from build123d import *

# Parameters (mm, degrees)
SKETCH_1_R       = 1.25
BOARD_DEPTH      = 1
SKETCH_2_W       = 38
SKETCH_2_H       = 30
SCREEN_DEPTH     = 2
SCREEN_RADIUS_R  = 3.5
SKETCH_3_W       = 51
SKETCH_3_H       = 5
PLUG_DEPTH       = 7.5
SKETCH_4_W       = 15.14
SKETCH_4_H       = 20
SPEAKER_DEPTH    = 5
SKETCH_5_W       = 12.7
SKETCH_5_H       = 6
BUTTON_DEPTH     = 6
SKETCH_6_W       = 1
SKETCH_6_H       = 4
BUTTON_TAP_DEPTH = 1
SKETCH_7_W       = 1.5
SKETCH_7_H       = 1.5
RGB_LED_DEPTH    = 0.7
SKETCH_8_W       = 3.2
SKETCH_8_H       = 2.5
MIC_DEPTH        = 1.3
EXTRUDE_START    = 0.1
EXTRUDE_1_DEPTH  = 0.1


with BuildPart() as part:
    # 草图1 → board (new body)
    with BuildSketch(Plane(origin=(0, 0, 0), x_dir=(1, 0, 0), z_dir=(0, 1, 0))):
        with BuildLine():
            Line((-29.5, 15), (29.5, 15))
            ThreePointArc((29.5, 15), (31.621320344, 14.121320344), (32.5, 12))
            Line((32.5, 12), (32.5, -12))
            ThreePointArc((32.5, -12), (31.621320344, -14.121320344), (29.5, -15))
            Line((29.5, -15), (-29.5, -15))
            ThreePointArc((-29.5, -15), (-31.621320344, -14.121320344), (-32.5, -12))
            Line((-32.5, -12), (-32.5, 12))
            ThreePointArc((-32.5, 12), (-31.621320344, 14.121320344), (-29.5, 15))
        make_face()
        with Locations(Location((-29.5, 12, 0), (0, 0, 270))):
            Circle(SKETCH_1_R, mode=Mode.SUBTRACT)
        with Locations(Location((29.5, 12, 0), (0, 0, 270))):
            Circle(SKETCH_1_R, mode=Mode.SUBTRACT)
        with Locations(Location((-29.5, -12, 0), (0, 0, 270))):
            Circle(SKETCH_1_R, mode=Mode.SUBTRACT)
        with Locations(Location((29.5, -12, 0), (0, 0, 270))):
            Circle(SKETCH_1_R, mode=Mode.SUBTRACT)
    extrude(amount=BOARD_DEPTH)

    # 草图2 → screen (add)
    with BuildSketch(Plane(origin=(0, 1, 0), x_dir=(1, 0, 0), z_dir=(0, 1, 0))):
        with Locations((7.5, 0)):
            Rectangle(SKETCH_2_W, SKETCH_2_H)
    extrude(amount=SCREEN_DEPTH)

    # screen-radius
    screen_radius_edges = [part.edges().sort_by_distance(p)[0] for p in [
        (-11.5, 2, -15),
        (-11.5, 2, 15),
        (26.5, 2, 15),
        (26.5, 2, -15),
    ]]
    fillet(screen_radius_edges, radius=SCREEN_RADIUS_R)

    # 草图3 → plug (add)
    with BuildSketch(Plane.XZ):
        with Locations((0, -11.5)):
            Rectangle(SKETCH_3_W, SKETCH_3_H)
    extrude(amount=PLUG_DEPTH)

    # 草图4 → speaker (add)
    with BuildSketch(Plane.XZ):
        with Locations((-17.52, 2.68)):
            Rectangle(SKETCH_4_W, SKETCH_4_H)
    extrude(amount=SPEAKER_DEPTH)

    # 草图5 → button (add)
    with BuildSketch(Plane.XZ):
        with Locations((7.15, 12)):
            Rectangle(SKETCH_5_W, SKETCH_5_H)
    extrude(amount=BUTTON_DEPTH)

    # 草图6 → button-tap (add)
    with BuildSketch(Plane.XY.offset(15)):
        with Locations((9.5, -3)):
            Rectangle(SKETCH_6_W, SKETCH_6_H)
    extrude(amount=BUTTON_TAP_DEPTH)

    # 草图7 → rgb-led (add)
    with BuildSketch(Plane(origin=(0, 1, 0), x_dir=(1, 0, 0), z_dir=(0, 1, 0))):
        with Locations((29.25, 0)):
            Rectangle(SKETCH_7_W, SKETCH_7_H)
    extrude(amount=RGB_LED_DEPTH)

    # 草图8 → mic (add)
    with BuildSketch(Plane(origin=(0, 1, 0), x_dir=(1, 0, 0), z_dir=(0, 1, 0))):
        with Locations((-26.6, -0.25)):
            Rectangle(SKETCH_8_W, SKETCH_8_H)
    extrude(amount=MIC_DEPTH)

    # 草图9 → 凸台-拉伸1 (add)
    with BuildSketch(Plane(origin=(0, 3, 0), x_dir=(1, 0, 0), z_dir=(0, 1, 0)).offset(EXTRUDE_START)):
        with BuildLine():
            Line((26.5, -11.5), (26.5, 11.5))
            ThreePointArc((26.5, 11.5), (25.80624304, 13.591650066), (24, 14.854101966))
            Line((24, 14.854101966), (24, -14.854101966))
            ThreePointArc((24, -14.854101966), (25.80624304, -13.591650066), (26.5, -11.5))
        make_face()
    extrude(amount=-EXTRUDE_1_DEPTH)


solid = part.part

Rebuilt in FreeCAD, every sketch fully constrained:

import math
import FreeCAD as App
import Part
import Sketcher

V = App.Vector
Q = App.Units.Quantity


def edges_at(feature, points):
    """Names of the edges that pass closest to the given points."""
    edges = feature.Shape.Edges
    near = lambda p: min(range(len(edges)), key=lambda i: edges[i].distToShape(Part.Vertex(*p))[0])
    return sorted({f"Edge{near(p) + 1}" for p in points})

doc = App.newDocument("Part")
params = doc.addObject("Spreadsheet::Sheet", "Params")
for row, (alias, value) in enumerate([
    ("sketch1_radius", "3 mm"),
    ("sketch1_diameter", "2.5 mm"),
    ("sketch1_width", "59 mm"),
    ("sketch1_height", "24 mm"),
    ("pad1_length", "1 mm"),
    ("sketch2_width", "38 mm"),
    ("sketch2_height", "30 mm"),
    ("pad2_length", "2 mm"),
    ("fillet_radius", "3.5 mm"),
    ("sketch3_width", "51 mm"),
    ("sketch3_height", "5 mm"),
    ("pad3_length", "7.5 mm"),
    ("sketch4_height", "20 mm"),
    ("sketch4_width", "15.14 mm"),
    ("pad4_length", "5 mm"),
    ("sketch5_height", "6 mm"),
    ("sketch5_width", "12.7 mm"),
    ("pad5_length", "6 mm"),
    ("sketch6_width", "1 mm"),
    ("sketch6_height", "4 mm"),
    ("pad6_length", "1 mm"),
    ("sketch7_width", "1.5 mm"),
    ("pad7_length", "0.7 mm"),
    ("sketch8_width", "3.2 mm"),
    ("sketch8_height", "2.5 mm"),
    ("pad8_length", "1.3 mm"),
    ("sketch9_radius", "3.5 mm"),
    ("sketch9_height", "23 mm"),
    ("pad9_length", "0.1 mm"),
], start=1):
    params.set(f"A{row}", alias)
    params.set(f"B{row}", "=" + value)
    params.setAlias(f"B{row}", alias)

body = doc.addObject("PartDesign::Body", "Body")

# Sketch on XZ plane
sketch1 = body.newObject("Sketcher::SketchObject", "Sketch")
sketch1.AttachmentSupport = (doc.getObject("XZ_Plane"), [""])
sketch1.MapMode = "FlatFace"
sketch1.addGeometry([
    Part.LineSegment(V(29.5, -15, 0), V(-29.5, -15, 0)),  # 0
    Part.ArcOfCircle(Part.Circle(V(-29.5, -12, 0), V(0, 0, 1), 3), math.radians(180), math.radians(270)),  # 1
    Part.LineSegment(V(-32.5, -12, 0), V(-32.5, 12, 0)),  # 2
    Part.ArcOfCircle(Part.Circle(V(-29.5, 12, 0), V(0, 0, 1), 3), math.radians(90), math.radians(180)),  # 3
    Part.LineSegment(V(-29.5, 15, 0), V(29.5, 15, 0)),  # 4
    Part.ArcOfCircle(Part.Circle(V(29.5, 12, 0), V(0, 0, 1), 3), math.radians(0), math.radians(90)),  # 5
    Part.LineSegment(V(32.5, 12, 0), V(32.5, -12, 0)),  # 6
    Part.ArcOfCircle(Part.Circle(V(29.5, -12, 0), V(0, 0, 1), 3), math.radians(-90), math.radians(0)),  # 7
    Part.Circle(V(29.5, 12, 0), V(0, 0, 1), 1.2),  # 8
    Part.Circle(V(-29.5, 12, 0), V(0, 0, 1), 1.2),  # 9
    Part.Circle(V(29.5, -12, 0), V(0, 0, 1), 1.2),  # 10
    Part.Circle(V(-29.5, -12, 0), V(0, 0, 1), 1.2),  # 11
], False)
sketch1.addConstraint([
    Sketcher.Constraint("Tangent", 0, 2, 1, 2),
    Sketcher.Constraint("Tangent", 1, 1, 2, 1),
    Sketcher.Constraint("Tangent", 2, 2, 3, 2),
    Sketcher.Constraint("Tangent", 3, 1, 4, 1),
    Sketcher.Constraint("Tangent", 4, 2, 5, 2),
    Sketcher.Constraint("Tangent", 5, 1, 6, 1),
    Sketcher.Constraint("Tangent", 6, 2, 7, 2),
    Sketcher.Constraint("Tangent", 7, 1, 0, 1),
    Sketcher.Constraint("Horizontal", 0),
    Sketcher.Constraint("Vertical", 2),
    Sketcher.Constraint("Horizontal", 4),
    Sketcher.Constraint("Vertical", 6),
    Sketcher.Constraint("Coincident", 8, 3, 5, 3),
    Sketcher.Constraint("Coincident", 9, 3, 3, 3),
    Sketcher.Constraint("Coincident", 10, 3, 7, 3),
    Sketcher.Constraint("Coincident", 11, 3, 1, 3),
    Sketcher.Constraint("Equal", 1, 3),
    Sketcher.Constraint("Equal", 3, 5),
    Sketcher.Constraint("Equal", 5, 7),
    Sketcher.Constraint("Equal", 8, 9),
    Sketcher.Constraint("Equal", 9, 10),
    Sketcher.Constraint("Equal", 10, 11),
    Sketcher.Constraint("Symmetric", 1, 3, 5, 3, -1, 1),
    Sketcher.Constraint("Radius", 1, Q("3 mm")),
    Sketcher.Constraint("Diameter", 8, Q("2.5 mm")),
    Sketcher.Constraint("DistanceX", 0, 2, 0, 1, Q("59 mm")),
    Sketcher.Constraint("DistanceY", 2, 1, 2, 2, Q("24 mm")),
])
sketch1.setExpression("Constraints[23]", "Params.sketch1_radius")
sketch1.setExpression("Constraints[24]", "Params.sketch1_diameter")
sketch1.setExpression("Constraints[25]", "Params.sketch1_width")
sketch1.setExpression("Constraints[26]", "Params.sketch1_height")
pad1 = body.newObject("PartDesign::Pad", "Pad")
pad1.Profile = sketch1
pad1.setExpression("Length", "Params.pad1_length")
pad1.Reversed = True

# Sketch on XZ plane
sketch2 = body.newObject("Sketcher::SketchObject", "Sketch001")
sketch2.AttachmentSupport = (doc.getObject("XZ_Plane"), [""])
sketch2.MapMode = "FlatFace"
sketch2.AttachmentOffset = App.Placement(V(0, 0, -1), App.Rotation())
sketch2.addGeometry([
    Part.LineSegment(V(-12, -15, 0), V(-12, 15, 0)),
    Part.LineSegment(V(-12, 15, 0), V(26, 15, 0)),
    Part.LineSegment(V(26, 15, 0), V(26, -15, 0)),
    Part.LineSegment(V(26, -15, 0), V(-12, -15, 0)),
], False)
sketch2.addConstraint([
    Sketcher.Constraint("Coincident", 0, 2, 1, 1),
    Sketcher.Constraint("Coincident", 1, 2, 2, 1),
    Sketcher.Constraint("Coincident", 2, 2, 3, 1),
    Sketcher.Constraint("Coincident", 3, 2, 0, 1),
    Sketcher.Constraint("Vertical", 0),
    Sketcher.Constraint("Horizontal", 1),
    Sketcher.Constraint("Vertical", 2),
    Sketcher.Constraint("Horizontal", 3),
    Sketcher.Constraint("DistanceX", 1, 1, 1, 2, Q("38 mm")),
    Sketcher.Constraint("DistanceY", 0, 1, 0, 2, Q("30 mm")),
    Sketcher.Constraint("DistanceY", -1, 1, 0, 2, Q("15 mm")),
    Sketcher.Constraint("DistanceX", 0, 2, -1, 1, Q("11.5 mm")),
])
sketch2.setExpression("Constraints[8]", "Params.sketch2_width")
sketch2.setExpression("Constraints[9]", "Params.sketch2_height")
pad2 = body.newObject("PartDesign::Pad", "Pad001")
pad2.Profile = sketch2
pad2.setExpression("Length", "Params.pad2_length")
pad2.Reversed = True
doc.recompute()

fillet = body.newObject("PartDesign::Fillet", "Fillet")
fillet.Base = (pad2, edges_at(pad2, [
    (-11.5, 2, -15),
    (-11.5, 2, 15),
    (26.5, 2, 15),
    (26.5, 2, -15),
]))
fillet.setExpression("Radius", "Params.fillet_radius")

# Sketch on XZ plane
sketch3 = body.newObject("Sketcher::SketchObject", "Sketch002")
sketch3.AttachmentSupport = (doc.getObject("XZ_Plane"), [""])
sketch3.MapMode = "FlatFace"
sketch3.addGeometry([
    Part.LineSegment(V(-26, -9, 0), V(-26, -14, 0)),
    Part.LineSegment(V(-26, -14, 0), V(26, -14, 0)),
    Part.LineSegment(V(26, -14, 0), V(26, -9, 0)),
    Part.LineSegment(V(26, -9, 0), V(-26, -9, 0)),
], False)
sketch3.addConstraint([
    Sketcher.Constraint("Coincident", 0, 2, 1, 1),
    Sketcher.Constraint("Coincident", 1, 2, 2, 1),
    Sketcher.Constraint("Coincident", 2, 2, 3, 1),
    Sketcher.Constraint("Coincident", 3, 2, 0, 1),
    Sketcher.Constraint("Vertical", 0),
    Sketcher.Constraint("Horizontal", 1),
    Sketcher.Constraint("Vertical", 2),
    Sketcher.Constraint("Horizontal", 3),
    Sketcher.Constraint("DistanceX", 1, 1, 1, 2, Q("51 mm")),
    Sketcher.Constraint("DistanceY", 0, 2, 0, 1, Q("5 mm")),
    Sketcher.Constraint("DistanceY", 0, 2, -1, 1, Q("14 mm")),
    Sketcher.Constraint("DistanceX", 0, 2, -1, 1, Q("25.5 mm")),
])
sketch3.setExpression("Constraints[8]", "Params.sketch3_width")
sketch3.setExpression("Constraints[9]", "Params.sketch3_height")
pad3 = body.newObject("PartDesign::Pad", "Pad002")
pad3.Profile = sketch3
pad3.setExpression("Length", "Params.pad3_length")

# Sketch on XZ plane
sketch4 = body.newObject("Sketcher::SketchObject", "Sketch003")
sketch4.AttachmentSupport = (doc.getObject("XZ_Plane"), [""])
sketch4.MapMode = "FlatFace"
sketch4.addGeometry([
    Part.LineSegment(V(-25, 13, 0), V(-25, -7, 0)),
    Part.LineSegment(V(-25, -7, 0), V(-10, -7, 0)),
    Part.LineSegment(V(-10, -7, 0), V(-10, 13, 0)),
    Part.LineSegment(V(-10, 13, 0), V(-25, 13, 0)),
], False)
sketch4.addConstraint([
    Sketcher.Constraint("Coincident", 0, 2, 1, 1),
    Sketcher.Constraint("Coincident", 1, 2, 2, 1),
    Sketcher.Constraint("Coincident", 2, 2, 3, 1),
    Sketcher.Constraint("Coincident", 3, 2, 0, 1),
    Sketcher.Constraint("Vertical", 0),
    Sketcher.Constraint("Horizontal", 1),
    Sketcher.Constraint("Vertical", 2),
    Sketcher.Constraint("Horizontal", 3),
    Sketcher.Constraint("DistanceY", 0, 2, 0, 1, Q("20 mm")),
    Sketcher.Constraint("DistanceX", 1, 1, 1, 2, Q("15.14 mm")),
    Sketcher.Constraint("DistanceX", 0, 2, -1, 1, Q("25.09 mm")),
    Sketcher.Constraint("DistanceY", 0, 2, -1, 1, Q("7.32 mm")),
])
sketch4.setExpression("Constraints[8]", "Params.sketch4_height")
sketch4.setExpression("Constraints[9]", "Params.sketch4_width")
pad4 = body.newObject("PartDesign::Pad", "Pad003")
pad4.Profile = sketch4
pad4.setExpression("Length", "Params.pad4_length")

# Sketch on XZ plane
sketch5 = body.newObject("Sketcher::SketchObject", "Sketch004")
sketch5.AttachmentSupport = (doc.getObject("XZ_Plane"), [""])
sketch5.MapMode = "FlatFace"
sketch5.addGeometry([
    Part.LineSegment(V(1, 15, 0), V(1, 9, 0)),
    Part.LineSegment(V(1, 9, 0), V(14, 9, 0)),
    Part.LineSegment(V(14, 9, 0), V(14, 15, 0)),
    Part.LineSegment(V(14, 15, 0), V(1, 15, 0)),
], False)
sketch5.addConstraint([
    Sketcher.Constraint("Coincident", 0, 2, 1, 1),
    Sketcher.Constraint("Coincident", 1, 2, 2, 1),
    Sketcher.Constraint("Coincident", 2, 2, 3, 1),
    Sketcher.Constraint("Coincident", 3, 2, 0, 1),
    Sketcher.Constraint("Vertical", 0),
    Sketcher.Constraint("Horizontal", 1),
    Sketcher.Constraint("Vertical", 2),
    Sketcher.Constraint("Horizontal", 3),
    Sketcher.Constraint("DistanceY", 0, 2, 0, 1, Q("6 mm")),
    Sketcher.Constraint("DistanceX", 1, 1, 1, 2, Q("12.7 mm")),
    Sketcher.Constraint("DistanceY", -1, 1, 0, 2, Q("9 mm")),
    Sketcher.Constraint("DistanceX", -1, 1, 0, 2, Q("0.8 mm")),
])
sketch5.setExpression("Constraints[8]", "Params.sketch5_height")
sketch5.setExpression("Constraints[9]", "Params.sketch5_width")
pad5 = body.newObject("PartDesign::Pad", "Pad004")
pad5.Profile = sketch5
pad5.setExpression("Length", "Params.pad5_length")

# Sketch on XY plane
sketch6 = body.newObject("Sketcher::SketchObject", "Sketch005")
sketch6.AttachmentSupport = (doc.getObject("XY_Plane"), [""])
sketch6.MapMode = "FlatFace"
sketch6.AttachmentOffset = App.Placement(V(0, 0, 15), App.Rotation())
sketch6.addGeometry([
    Part.LineSegment(V(9, -1, 0), V(9, -5, 0)),
    Part.LineSegment(V(9, -5, 0), V(10, -5, 0)),
    Part.LineSegment(V(10, -5, 0), V(10, -1, 0)),
    Part.LineSegment(V(10, -1, 0), V(9, -1, 0)),
], False)
sketch6.addConstraint([
    Sketcher.Constraint("Coincident", 0, 2, 1, 1),
    Sketcher.Constraint("Coincident", 1, 2, 2, 1),
    Sketcher.Constraint("Coincident", 2, 2, 3, 1),
    Sketcher.Constraint("Coincident", 3, 2, 0, 1),
    Sketcher.Constraint("Vertical", 0),
    Sketcher.Constraint("Horizontal", 1),
    Sketcher.Constraint("Vertical", 2),
    Sketcher.Constraint("Horizontal", 3),
    Sketcher.Constraint("DistanceX", 1, 1, 1, 2, Q("1 mm")),
    Sketcher.Constraint("DistanceY", 0, 2, 0, 1, Q("4 mm")),
    Sketcher.Constraint("DistanceX", -1, 1, 0, 2, Q("9 mm")),
    Sketcher.Constraint("DistanceY", 0, 2, -1, 1, Q("5 mm")),
])
sketch6.setExpression("Constraints[8]", "Params.sketch6_width")
sketch6.setExpression("Constraints[9]", "Params.sketch6_height")
pad6 = body.newObject("PartDesign::Pad", "Pad005")
pad6.Profile = sketch6
pad6.setExpression("Length", "Params.pad6_length")

# Sketch on XZ plane
sketch7 = body.newObject("Sketcher::SketchObject", "Sketch006")
sketch7.AttachmentSupport = (doc.getObject("XZ_Plane"), [""])
sketch7.MapMode = "FlatFace"
sketch7.AttachmentOffset = App.Placement(V(0, 0, -1), App.Rotation())
sketch7.addGeometry([
    Part.LineSegment(V(28.5, -0.8, 0), V(28.5, 0.8, 0)),
    Part.LineSegment(V(28.5, 0.8, 0), V(30, 0.8, 0)),
    Part.LineSegment(V(30, 0.8, 0), V(30, -0.8, 0)),
    Part.LineSegment(V(30, -0.8, 0), V(28.5, -0.8, 0)),
], False)
sketch7.addConstraint([
    Sketcher.Constraint("Coincident", 0, 2, 1, 1),
    Sketcher.Constraint("Coincident", 1, 2, 2, 1),
    Sketcher.Constraint("Coincident", 2, 2, 3, 1),
    Sketcher.Constraint("Coincident", 3, 2, 0, 1),
    Sketcher.Constraint("Vertical", 0),
    Sketcher.Constraint("Horizontal", 1),
    Sketcher.Constraint("Vertical", 2),
    Sketcher.Constraint("Horizontal", 3),
    Sketcher.Constraint("Equal", 3, 0),
    Sketcher.Constraint("DistanceX", 1, 1, 1, 2, Q("1.5 mm")),
    Sketcher.Constraint("DistanceX", -1, 1, 1, 2, Q("30 mm")),
    Sketcher.Constraint("DistanceY", -1, 1, 0, 2, Q("0.75 mm")),
])
sketch7.setExpression("Constraints[9]", "Params.sketch7_width")
pad7 = body.newObject("PartDesign::Pad", "Pad006")
pad7.Profile = sketch7
pad7.setExpression("Length", "Params.pad7_length")
pad7.Reversed = True

# Sketch on XZ plane
sketch8 = body.newObject("Sketcher::SketchObject", "Sketch007")
sketch8.AttachmentSupport = (doc.getObject("XZ_Plane"), [""])
sketch8.MapMode = "FlatFace"
sketch8.AttachmentOffset = App.Placement(V(0, 0, -1), App.Rotation())
sketch8.addGeometry([
    Part.LineSegment(V(-28.2, -1, 0), V(-28.2, 1.5, 0)),
    Part.LineSegment(V(-28.2, 1.5, 0), V(-25, 1.5, 0)),
    Part.LineSegment(V(-25, 1.5, 0), V(-25, -1, 0)),
    Part.LineSegment(V(-25, -1, 0), V(-28.2, -1, 0)),
], False)
sketch8.addConstraint([
    Sketcher.Constraint("Coincident", 0, 2, 1, 1),
    Sketcher.Constraint("Coincident", 1, 2, 2, 1),
    Sketcher.Constraint("Coincident", 2, 2, 3, 1),
    Sketcher.Constraint("Coincident", 3, 2, 0, 1),
    Sketcher.Constraint("Vertical", 0),
    Sketcher.Constraint("Horizontal", 1),
    Sketcher.Constraint("Vertical", 2),
    Sketcher.Constraint("Horizontal", 3),
    Sketcher.Constraint("DistanceX", 1, 1, 1, 2, Q("3.2 mm")),
    Sketcher.Constraint("DistanceY", 0, 1, 0, 2, Q("2.5 mm")),
    Sketcher.Constraint("DistanceX", 1, 2, -1, 1, Q("25 mm")),
    Sketcher.Constraint("DistanceY", 2, 2, -1, 1, Q("1 mm")),
])
sketch8.setExpression("Constraints[8]", "Params.sketch8_width")
sketch8.setExpression("Constraints[9]", "Params.sketch8_height")
pad8 = body.newObject("PartDesign::Pad", "Pad007")
pad8.Profile = sketch8
pad8.setExpression("Length", "Params.pad8_length")
pad8.Reversed = True

# Sketch on XZ plane
sketch9 = body.newObject("Sketcher::SketchObject", "Sketch008")
sketch9.AttachmentSupport = (doc.getObject("XZ_Plane"), [""])
sketch9.MapMode = "FlatFace"
sketch9.AttachmentOffset = App.Placement(V(0, 0, -3.1), App.Rotation())
sketch9.addGeometry([
    Part.LineSegment(V(26.5, 11.5, 0), V(26.5, -11.5, 0)),
    Part.ArcOfCircle(Part.Circle(V(23, -11.5, 0), V(0, 0, 1), 3.5), math.radians(-73), math.radians(0)),
    Part.LineSegment(V(24, -14.9, 0), V(24, 14.9, 0)),
    Part.ArcOfCircle(Part.Circle(V(23, 11.5, 0), V(0, 0, 1), 3.5), math.radians(0), math.radians(73)),
], False)
sketch9.addConstraint([
    Sketcher.Constraint("Tangent", 0, 2, 1, 2),
    Sketcher.Constraint("Coincident", 1, 1, 2, 1),
    Sketcher.Constraint("Coincident", 2, 2, 3, 2),
    Sketcher.Constraint("Tangent", 3, 1, 0, 1),
    Sketcher.Constraint("Vertical", 0),
    Sketcher.Constraint("Vertical", 2),
    Sketcher.Constraint("Equal", 1, 3),
    Sketcher.Constraint("Radius", 1, Q("3.5 mm")),
    Sketcher.Constraint("DistanceY", 0, 2, 0, 1, Q("23 mm")),
    Sketcher.Constraint("DistanceX", -1, 1, 1, 3, Q("23 mm")),
    Sketcher.Constraint("DistanceX", -1, 1, 1, 1, Q("24 mm")),
    Sketcher.Constraint("DistanceY", 1, 3, -1, 1, Q("11.5 mm")),
])
sketch9.setExpression("Constraints[7]", "Params.sketch9_radius")
sketch9.setExpression("Constraints[8]", "Params.sketch9_height")
pad9 = body.newObject("PartDesign::Pad", "Pad008")
pad9.Profile = sketch9
pad9.setExpression("Length", "Params.pad9_length")

doc.recompute()
